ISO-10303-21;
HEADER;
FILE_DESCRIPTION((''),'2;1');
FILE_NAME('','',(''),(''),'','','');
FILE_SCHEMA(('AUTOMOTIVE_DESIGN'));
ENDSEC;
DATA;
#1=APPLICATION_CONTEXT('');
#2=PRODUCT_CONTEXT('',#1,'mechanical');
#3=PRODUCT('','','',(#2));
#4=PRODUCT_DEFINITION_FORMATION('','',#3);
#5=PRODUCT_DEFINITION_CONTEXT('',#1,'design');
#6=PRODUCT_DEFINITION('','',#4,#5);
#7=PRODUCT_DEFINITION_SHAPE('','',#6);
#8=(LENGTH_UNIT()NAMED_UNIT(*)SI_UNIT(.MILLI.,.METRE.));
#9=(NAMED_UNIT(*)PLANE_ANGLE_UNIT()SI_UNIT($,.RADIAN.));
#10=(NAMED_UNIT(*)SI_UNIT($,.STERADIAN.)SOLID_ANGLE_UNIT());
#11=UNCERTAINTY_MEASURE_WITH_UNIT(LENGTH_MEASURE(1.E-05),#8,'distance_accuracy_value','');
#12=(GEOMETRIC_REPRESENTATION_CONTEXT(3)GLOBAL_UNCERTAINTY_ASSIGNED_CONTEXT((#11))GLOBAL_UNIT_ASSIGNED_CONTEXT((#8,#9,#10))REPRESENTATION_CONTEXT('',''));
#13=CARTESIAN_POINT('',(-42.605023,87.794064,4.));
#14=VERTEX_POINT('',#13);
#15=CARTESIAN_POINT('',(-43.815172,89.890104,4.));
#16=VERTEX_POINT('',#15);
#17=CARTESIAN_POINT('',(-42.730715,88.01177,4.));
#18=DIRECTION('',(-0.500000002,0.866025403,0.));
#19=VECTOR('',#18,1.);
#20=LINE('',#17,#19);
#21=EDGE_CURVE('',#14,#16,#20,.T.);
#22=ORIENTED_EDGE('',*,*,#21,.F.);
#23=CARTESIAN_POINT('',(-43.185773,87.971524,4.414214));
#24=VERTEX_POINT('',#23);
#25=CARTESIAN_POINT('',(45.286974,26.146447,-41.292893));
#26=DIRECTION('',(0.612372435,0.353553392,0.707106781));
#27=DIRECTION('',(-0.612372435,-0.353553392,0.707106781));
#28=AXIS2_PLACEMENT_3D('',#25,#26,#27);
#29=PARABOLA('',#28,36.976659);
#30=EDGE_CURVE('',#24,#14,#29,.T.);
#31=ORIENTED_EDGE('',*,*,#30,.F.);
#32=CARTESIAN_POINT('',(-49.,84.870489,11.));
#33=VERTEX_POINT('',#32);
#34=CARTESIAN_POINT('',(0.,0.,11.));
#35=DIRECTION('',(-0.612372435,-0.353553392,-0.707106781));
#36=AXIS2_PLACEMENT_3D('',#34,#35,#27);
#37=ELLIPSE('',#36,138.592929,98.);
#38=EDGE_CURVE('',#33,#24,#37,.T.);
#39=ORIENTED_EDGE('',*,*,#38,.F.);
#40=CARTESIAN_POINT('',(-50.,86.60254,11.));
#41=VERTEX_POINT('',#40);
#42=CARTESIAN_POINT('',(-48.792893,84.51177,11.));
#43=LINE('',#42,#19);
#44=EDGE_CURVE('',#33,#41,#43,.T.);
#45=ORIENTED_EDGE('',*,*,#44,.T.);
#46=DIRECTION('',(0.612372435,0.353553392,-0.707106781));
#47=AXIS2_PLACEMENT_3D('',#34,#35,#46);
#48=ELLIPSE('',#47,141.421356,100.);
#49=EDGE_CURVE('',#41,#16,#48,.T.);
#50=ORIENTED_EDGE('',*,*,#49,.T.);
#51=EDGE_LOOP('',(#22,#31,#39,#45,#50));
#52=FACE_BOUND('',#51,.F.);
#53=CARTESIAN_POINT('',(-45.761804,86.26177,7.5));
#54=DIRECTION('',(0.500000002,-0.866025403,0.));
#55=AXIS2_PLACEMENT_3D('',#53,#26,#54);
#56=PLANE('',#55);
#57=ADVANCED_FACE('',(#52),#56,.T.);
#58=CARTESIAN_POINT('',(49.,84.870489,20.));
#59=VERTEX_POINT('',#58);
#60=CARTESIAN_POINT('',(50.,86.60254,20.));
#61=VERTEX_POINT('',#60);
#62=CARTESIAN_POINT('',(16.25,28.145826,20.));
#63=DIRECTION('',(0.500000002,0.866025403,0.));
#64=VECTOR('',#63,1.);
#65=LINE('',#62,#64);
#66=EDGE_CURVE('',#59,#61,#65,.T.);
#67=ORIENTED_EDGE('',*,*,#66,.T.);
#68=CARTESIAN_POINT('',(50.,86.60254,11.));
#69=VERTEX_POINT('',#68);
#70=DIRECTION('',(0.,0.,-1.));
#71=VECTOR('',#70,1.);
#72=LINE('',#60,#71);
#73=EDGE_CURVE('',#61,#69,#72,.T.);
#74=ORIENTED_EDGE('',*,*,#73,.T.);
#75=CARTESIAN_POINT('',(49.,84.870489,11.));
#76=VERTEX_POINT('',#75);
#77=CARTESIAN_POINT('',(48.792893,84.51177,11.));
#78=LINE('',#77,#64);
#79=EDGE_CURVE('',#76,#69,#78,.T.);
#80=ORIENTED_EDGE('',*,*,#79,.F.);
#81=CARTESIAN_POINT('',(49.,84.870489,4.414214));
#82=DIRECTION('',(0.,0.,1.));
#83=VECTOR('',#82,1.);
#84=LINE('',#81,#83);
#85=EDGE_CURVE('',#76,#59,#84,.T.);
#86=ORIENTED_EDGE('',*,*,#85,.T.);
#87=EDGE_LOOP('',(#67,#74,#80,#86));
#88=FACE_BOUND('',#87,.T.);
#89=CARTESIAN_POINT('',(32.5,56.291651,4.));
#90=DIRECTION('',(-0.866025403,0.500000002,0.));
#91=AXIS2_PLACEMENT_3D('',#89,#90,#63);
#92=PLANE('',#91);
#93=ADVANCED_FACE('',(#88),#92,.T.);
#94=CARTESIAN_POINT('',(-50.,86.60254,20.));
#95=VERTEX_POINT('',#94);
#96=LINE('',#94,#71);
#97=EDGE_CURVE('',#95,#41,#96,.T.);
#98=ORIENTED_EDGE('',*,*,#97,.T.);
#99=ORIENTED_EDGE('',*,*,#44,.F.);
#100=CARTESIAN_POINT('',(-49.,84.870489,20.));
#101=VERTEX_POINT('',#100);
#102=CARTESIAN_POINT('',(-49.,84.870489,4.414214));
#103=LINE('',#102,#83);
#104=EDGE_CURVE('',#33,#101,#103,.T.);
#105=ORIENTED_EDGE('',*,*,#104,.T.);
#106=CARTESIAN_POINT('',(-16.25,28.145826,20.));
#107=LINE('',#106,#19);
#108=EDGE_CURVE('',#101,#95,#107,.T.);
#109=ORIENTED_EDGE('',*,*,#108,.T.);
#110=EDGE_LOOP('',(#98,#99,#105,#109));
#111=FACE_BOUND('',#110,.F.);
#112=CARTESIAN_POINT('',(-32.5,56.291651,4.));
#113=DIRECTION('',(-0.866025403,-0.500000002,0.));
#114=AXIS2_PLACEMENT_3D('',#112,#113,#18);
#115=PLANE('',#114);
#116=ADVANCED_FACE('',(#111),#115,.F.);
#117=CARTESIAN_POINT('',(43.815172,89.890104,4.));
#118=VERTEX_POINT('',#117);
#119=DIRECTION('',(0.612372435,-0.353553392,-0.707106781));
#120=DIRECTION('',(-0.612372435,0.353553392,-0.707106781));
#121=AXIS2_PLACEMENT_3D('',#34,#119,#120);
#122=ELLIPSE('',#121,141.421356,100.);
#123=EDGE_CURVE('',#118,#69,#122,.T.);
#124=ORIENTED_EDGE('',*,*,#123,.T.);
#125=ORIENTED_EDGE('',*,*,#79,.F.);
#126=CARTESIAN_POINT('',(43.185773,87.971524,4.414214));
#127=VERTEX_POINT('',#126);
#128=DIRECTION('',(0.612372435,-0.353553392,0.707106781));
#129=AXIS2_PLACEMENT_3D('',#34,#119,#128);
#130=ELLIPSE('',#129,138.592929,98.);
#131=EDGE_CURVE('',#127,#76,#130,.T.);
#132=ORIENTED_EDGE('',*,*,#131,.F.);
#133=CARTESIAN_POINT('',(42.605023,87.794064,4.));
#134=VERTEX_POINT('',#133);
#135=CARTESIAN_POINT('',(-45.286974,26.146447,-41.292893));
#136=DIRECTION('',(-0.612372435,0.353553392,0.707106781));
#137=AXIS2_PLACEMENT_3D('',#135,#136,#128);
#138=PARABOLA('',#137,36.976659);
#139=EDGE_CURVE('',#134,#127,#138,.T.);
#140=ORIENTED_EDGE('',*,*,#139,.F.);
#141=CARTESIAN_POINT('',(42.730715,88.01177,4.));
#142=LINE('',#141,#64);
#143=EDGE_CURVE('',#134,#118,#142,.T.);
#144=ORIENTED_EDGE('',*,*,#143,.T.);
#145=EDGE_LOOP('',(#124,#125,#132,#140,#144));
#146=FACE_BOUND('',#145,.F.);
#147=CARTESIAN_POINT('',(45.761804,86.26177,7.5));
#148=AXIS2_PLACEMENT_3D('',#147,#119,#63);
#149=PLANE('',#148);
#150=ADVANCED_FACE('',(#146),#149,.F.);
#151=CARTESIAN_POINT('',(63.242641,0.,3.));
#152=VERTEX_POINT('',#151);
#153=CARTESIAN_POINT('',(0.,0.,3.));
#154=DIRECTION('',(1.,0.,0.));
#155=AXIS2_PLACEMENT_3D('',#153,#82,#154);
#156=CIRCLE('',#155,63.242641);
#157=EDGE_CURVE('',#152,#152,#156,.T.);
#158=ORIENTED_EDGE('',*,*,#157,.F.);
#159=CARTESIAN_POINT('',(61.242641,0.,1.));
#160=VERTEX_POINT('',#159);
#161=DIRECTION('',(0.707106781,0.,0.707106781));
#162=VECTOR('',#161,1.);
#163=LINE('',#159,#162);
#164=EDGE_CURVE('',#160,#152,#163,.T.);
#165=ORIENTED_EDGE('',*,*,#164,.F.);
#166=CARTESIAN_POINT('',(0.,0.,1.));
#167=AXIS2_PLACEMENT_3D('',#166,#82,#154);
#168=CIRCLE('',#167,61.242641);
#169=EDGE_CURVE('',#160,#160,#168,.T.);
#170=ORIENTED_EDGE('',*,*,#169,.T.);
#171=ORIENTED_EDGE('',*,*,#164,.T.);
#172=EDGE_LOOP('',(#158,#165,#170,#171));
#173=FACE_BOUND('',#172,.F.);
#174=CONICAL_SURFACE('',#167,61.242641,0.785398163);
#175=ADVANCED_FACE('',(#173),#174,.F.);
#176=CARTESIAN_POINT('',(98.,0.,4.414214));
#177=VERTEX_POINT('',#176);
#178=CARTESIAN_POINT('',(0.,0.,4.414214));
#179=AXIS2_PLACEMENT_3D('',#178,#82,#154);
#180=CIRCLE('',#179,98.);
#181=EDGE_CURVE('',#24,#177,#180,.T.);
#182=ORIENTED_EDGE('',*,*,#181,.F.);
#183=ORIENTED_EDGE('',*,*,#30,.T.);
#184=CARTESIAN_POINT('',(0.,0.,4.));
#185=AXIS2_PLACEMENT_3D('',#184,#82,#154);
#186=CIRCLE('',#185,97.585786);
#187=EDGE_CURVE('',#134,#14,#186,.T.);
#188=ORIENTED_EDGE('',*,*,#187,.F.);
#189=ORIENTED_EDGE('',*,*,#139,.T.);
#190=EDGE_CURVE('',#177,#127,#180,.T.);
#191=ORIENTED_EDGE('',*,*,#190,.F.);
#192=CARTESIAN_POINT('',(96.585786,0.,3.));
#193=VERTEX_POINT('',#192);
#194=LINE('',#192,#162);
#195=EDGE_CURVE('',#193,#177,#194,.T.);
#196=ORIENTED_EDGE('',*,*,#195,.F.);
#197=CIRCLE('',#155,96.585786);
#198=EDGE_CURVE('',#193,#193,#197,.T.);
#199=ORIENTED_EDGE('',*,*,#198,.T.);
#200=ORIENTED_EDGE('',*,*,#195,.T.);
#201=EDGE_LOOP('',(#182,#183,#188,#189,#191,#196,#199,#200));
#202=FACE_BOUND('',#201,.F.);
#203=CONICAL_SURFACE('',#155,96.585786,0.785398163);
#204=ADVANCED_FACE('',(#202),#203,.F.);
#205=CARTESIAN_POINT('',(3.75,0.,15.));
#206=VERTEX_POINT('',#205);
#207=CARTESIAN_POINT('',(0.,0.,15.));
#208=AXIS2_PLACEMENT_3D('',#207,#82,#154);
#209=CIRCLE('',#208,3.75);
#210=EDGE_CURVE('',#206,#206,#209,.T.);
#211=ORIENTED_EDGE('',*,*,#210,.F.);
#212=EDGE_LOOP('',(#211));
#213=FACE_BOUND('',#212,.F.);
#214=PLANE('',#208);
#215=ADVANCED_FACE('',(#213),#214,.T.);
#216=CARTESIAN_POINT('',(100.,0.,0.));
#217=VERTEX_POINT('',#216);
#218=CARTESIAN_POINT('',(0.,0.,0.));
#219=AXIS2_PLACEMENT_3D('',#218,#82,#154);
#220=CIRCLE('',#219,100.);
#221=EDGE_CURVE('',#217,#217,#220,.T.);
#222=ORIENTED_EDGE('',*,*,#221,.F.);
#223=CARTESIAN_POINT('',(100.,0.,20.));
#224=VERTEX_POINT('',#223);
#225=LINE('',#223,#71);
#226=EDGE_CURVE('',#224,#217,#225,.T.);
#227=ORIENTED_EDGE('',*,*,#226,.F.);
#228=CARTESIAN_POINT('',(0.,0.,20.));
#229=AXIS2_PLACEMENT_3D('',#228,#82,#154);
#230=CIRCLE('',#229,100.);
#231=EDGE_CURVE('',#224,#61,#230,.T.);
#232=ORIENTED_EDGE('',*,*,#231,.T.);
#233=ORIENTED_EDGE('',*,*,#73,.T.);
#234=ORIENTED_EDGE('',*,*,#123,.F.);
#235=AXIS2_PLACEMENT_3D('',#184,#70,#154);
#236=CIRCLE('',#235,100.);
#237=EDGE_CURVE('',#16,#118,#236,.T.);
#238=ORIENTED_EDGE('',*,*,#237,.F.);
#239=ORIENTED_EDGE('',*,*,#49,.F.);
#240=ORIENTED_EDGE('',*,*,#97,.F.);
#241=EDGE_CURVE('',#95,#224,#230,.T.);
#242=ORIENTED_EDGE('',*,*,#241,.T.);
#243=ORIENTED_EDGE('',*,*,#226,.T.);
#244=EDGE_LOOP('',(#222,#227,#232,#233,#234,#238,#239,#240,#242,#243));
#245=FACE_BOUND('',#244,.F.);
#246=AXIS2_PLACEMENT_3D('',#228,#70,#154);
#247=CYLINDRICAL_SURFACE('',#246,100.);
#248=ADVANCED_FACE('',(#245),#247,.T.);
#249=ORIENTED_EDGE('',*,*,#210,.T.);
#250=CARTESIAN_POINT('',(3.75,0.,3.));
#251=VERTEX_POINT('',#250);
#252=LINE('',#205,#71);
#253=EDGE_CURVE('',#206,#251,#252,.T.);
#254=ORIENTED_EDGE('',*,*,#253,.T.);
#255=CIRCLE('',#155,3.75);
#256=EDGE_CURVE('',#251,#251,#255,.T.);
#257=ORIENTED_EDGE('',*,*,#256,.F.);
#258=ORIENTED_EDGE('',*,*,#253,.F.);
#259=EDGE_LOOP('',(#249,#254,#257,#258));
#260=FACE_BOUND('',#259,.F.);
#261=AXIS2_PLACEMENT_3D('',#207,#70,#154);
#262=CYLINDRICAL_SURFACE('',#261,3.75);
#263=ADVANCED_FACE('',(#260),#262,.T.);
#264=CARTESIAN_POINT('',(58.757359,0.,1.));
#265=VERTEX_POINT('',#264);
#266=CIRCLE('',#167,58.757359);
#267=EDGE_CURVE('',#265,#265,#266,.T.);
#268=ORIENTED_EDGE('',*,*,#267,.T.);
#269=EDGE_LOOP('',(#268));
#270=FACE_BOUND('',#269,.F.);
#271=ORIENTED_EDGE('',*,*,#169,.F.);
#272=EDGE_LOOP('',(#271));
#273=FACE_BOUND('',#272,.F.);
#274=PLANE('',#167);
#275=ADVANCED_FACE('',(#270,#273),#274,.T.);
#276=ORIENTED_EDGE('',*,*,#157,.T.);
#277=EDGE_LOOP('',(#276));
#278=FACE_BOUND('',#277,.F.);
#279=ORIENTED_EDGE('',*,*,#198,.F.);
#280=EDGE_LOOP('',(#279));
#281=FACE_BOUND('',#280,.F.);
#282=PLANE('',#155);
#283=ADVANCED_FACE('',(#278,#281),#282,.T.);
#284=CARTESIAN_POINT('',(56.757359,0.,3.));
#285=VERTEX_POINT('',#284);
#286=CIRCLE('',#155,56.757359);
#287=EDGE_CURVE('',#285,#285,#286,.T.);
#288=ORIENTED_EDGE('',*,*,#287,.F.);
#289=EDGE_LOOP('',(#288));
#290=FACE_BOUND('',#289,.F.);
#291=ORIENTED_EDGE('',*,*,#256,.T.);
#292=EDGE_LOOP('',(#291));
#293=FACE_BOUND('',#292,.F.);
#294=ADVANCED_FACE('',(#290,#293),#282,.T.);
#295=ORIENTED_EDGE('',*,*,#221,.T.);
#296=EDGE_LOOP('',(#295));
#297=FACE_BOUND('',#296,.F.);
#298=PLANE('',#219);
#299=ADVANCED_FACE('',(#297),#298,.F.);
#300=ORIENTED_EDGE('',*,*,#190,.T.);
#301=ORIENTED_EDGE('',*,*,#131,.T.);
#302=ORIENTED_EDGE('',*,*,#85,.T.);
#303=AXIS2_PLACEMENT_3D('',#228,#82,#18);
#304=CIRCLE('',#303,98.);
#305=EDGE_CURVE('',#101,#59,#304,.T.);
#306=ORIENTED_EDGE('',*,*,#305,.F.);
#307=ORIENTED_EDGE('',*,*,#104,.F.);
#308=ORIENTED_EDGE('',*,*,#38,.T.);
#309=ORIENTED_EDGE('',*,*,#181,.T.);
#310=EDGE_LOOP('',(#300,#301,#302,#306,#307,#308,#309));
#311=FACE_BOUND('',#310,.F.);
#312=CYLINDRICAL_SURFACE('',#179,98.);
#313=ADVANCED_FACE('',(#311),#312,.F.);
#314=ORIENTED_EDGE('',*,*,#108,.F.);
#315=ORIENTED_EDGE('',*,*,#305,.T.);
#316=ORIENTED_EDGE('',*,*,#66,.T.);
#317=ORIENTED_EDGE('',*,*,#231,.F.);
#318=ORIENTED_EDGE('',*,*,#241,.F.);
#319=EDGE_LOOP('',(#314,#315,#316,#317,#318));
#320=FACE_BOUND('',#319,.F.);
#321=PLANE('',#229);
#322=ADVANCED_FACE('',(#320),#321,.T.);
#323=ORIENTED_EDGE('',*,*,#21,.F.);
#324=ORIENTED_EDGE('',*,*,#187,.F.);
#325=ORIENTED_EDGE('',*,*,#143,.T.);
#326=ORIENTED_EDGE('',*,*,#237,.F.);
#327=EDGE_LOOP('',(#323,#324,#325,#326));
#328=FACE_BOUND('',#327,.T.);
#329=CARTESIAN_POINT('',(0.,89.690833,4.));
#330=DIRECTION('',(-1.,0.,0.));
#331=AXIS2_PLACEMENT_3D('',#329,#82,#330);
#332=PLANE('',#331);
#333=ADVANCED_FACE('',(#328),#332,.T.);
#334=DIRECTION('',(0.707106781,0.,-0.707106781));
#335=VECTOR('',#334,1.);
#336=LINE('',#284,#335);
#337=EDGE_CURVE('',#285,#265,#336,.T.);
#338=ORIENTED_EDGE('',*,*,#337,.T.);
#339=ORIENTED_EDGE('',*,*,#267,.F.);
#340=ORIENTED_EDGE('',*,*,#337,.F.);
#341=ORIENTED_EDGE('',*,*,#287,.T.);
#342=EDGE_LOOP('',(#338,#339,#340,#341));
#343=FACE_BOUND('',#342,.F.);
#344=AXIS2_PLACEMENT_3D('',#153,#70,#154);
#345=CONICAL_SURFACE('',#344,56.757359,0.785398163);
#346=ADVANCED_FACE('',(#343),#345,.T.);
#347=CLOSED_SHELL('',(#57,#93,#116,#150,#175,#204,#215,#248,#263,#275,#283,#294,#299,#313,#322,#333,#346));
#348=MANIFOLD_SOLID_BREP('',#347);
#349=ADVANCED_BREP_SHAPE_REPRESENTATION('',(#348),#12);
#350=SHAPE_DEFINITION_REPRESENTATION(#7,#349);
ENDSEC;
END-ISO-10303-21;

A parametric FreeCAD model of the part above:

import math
import FreeCAD as App
import Part
import Sketcher
from FreeCAD import Vector
Q = App.Units.Quantity


def edges_at(feature, points):
    """Names of the edges that pass closest to the given points."""
    edges = feature.Shape.Edges
    near = lambda p: min(range(len(edges)), key=lambda i: edges[i].distToShape(Part.Vertex(*p))[0])
    return sorted({f"Edge{near(p) + 1}" for p in points})


def add_polygon(sketch, points):
    """Adds a closed chain of lines whose ends are joined by coincident constraints."""
    first, n = sketch.GeometryCount, len(points)
    for a, b in zip(points, points[1:] + points[:1]):
        sketch.addGeometry(Part.LineSegment(App.Vector(*a, 0), App.Vector(*b, 0)), False)
    for i in range(n):
        sketch.addConstraint(Sketcher.Constraint("Coincident", first + i, 2, first + (i + 1) % n, 1))

doc = App.newDocument("Part")
body = doc.addObject("PartDesign::Body", "Body")

# Sketch on XZ plane
sketch1 = body.newObject("Sketcher::SketchObject", "Sketch")
sketch1.AttachmentSupport = (doc.getObject("XZ_Plane"), [""])
sketch1.MapMode = "FlatFace"
add_polygon(sketch1, [(0, 15), (0, 0), (100, 0), (100, 20), (98, 20), (98, 4.4), (96.6, 3), (63.2, 3), (61.2, 1), (58.8, 1), (56.8, 3), (3.8, 3), (3.8, 15)])  # lines 0-12
sketch1.addConstraint([
    Sketcher.Constraint("Vertical", 0),
    Sketcher.Constraint("Horizontal", 1),
    Sketcher.Constraint("Vertical", 2),
    Sketcher.Constraint("Horizontal", 3),
    Sketcher.Constraint("Vertical", 4),
    Sketcher.Constraint("Horizontal", 6),
    Sketcher.Constraint("Horizontal", 8),
    Sketcher.Constraint("Horizontal", 10),
    Sketcher.Constraint("Vertical", 11),
    Sketcher.Constraint("Horizontal", 12),
    Sketcher.Constraint("Coincident", 0, 2, -1, 1),
    Sketcher.Constraint("Parallel", 5, 7),
    Sketcher.Constraint("Perpendicular", 7, 9),
    Sketcher.Constraint("Horizontal", 6, 2, 9, 2),
    Sketcher.Constraint("Equal", 7, 9),
    Sketcher.Constraint("DistanceX", 1, 1, 1, 2, 100.0),
    Sketcher.Constraint("DistanceX", 3, 2, 3, 1, 2.0),
    Sketcher.Constraint("DistanceY", 0, 2, 0, 1, 15.0),
    Sketcher.Constraint("DistanceY", 2, 1, 2, 2, 20.0),
    Sketcher.Constraint("DistanceY", 11, 1, 11, 2, 12.0),
    Sketcher.Constraint("Distance", 5, 2.000001),
    Sketcher.Constraint("DistanceY", -1, 1, 7, 2, 1.0),
    Sketcher.Constraint("DistanceX", 12, 2, 12, 1, 3.75),
    Sketcher.Constraint("DistanceX", 8, 2, 8, 1, 2.485282),
    Sketcher.Constraint("DistanceX", 10, 2, 10, 1, 53.007359),
])
revolution = body.newObject("PartDesign::Revolution", "Revolution")
revolution.Profile = sketch1
revolution.ReferenceAxis = (sketch1, ["V_Axis"])
revolution.Angle = 360

# Sketch on XY plane
sketch2 = body.newObject("Sketcher::SketchObject", "Sketch001")
sketch2.AttachmentSupport = (doc.getObject("XY_Plane"), [""])
sketch2.MapMode = "FlatFace"
sketch2.AttachmentOffset = App.Placement(Vector(0, 0, 4), App.Rotation())
sketch2.addGeometry([
    Part.ArcOfCircle(Part.Circle(Vector(0, 0, 0), Vector(0, 0, 1), 120), math.radians(60), math.radians(120)),
    Part.LineSegment(Vector(-60, 104, 0), Vector(-32, 56, 0)),
    Part.ArcOfCircle(Part.Circle(Vector(0, 0, 0), Vector(0, 0, 1), 65), math.radians(60), math.radians(120)),
    Part.LineSegment(Vector(32, 56, 0), Vector(60, 104, 0)),
], False)
sketch2.addConstraint([
    Sketcher.Constraint("Coincident", 0, 2, 1, 1),
    Sketcher.Constraint("Coincident", 1, 2, 2, 2),
    Sketcher.Constraint("Coincident", 2, 1, 3, 1),
    Sketcher.Constraint("Coincident", 3, 2, 0, 1),
    Sketcher.Constraint("Coincident", 0, 3, -1, 1),
    Sketcher.Constraint("Coincident", 2, 3, -1, 1),
    Sketcher.Constraint("Horizontal", 1, 2, 2, 1),
    Sketcher.Constraint("Horizontal", 0, 2, 3, 2),
    Sketcher.Constraint("Radius", 2, 64.999998),
    Sketcher.Constraint("Angle", 1, Q("-60 deg")),
    Sketcher.Constraint("Distance", 1, 55.0),
    Sketcher.Constraint("DistanceX", 0, 2, -1, 1, 60.0),
])
pocket1 = body.newObject("PartDesign::Pocket", "Pocket")
pocket1.Profile = sketch2
pocket1.Length = 20
pocket1.Reversed = True
doc.recompute()

chamfer = body.newObject("PartDesign::Chamfer", "Chamfer")
chamfer.Base = (pocket1, edges_at(pocket1, [(-49.396, 85.557, 4), (49.396, 85.557, 4)]))
chamfer.Size = 7

doc.recompute()
